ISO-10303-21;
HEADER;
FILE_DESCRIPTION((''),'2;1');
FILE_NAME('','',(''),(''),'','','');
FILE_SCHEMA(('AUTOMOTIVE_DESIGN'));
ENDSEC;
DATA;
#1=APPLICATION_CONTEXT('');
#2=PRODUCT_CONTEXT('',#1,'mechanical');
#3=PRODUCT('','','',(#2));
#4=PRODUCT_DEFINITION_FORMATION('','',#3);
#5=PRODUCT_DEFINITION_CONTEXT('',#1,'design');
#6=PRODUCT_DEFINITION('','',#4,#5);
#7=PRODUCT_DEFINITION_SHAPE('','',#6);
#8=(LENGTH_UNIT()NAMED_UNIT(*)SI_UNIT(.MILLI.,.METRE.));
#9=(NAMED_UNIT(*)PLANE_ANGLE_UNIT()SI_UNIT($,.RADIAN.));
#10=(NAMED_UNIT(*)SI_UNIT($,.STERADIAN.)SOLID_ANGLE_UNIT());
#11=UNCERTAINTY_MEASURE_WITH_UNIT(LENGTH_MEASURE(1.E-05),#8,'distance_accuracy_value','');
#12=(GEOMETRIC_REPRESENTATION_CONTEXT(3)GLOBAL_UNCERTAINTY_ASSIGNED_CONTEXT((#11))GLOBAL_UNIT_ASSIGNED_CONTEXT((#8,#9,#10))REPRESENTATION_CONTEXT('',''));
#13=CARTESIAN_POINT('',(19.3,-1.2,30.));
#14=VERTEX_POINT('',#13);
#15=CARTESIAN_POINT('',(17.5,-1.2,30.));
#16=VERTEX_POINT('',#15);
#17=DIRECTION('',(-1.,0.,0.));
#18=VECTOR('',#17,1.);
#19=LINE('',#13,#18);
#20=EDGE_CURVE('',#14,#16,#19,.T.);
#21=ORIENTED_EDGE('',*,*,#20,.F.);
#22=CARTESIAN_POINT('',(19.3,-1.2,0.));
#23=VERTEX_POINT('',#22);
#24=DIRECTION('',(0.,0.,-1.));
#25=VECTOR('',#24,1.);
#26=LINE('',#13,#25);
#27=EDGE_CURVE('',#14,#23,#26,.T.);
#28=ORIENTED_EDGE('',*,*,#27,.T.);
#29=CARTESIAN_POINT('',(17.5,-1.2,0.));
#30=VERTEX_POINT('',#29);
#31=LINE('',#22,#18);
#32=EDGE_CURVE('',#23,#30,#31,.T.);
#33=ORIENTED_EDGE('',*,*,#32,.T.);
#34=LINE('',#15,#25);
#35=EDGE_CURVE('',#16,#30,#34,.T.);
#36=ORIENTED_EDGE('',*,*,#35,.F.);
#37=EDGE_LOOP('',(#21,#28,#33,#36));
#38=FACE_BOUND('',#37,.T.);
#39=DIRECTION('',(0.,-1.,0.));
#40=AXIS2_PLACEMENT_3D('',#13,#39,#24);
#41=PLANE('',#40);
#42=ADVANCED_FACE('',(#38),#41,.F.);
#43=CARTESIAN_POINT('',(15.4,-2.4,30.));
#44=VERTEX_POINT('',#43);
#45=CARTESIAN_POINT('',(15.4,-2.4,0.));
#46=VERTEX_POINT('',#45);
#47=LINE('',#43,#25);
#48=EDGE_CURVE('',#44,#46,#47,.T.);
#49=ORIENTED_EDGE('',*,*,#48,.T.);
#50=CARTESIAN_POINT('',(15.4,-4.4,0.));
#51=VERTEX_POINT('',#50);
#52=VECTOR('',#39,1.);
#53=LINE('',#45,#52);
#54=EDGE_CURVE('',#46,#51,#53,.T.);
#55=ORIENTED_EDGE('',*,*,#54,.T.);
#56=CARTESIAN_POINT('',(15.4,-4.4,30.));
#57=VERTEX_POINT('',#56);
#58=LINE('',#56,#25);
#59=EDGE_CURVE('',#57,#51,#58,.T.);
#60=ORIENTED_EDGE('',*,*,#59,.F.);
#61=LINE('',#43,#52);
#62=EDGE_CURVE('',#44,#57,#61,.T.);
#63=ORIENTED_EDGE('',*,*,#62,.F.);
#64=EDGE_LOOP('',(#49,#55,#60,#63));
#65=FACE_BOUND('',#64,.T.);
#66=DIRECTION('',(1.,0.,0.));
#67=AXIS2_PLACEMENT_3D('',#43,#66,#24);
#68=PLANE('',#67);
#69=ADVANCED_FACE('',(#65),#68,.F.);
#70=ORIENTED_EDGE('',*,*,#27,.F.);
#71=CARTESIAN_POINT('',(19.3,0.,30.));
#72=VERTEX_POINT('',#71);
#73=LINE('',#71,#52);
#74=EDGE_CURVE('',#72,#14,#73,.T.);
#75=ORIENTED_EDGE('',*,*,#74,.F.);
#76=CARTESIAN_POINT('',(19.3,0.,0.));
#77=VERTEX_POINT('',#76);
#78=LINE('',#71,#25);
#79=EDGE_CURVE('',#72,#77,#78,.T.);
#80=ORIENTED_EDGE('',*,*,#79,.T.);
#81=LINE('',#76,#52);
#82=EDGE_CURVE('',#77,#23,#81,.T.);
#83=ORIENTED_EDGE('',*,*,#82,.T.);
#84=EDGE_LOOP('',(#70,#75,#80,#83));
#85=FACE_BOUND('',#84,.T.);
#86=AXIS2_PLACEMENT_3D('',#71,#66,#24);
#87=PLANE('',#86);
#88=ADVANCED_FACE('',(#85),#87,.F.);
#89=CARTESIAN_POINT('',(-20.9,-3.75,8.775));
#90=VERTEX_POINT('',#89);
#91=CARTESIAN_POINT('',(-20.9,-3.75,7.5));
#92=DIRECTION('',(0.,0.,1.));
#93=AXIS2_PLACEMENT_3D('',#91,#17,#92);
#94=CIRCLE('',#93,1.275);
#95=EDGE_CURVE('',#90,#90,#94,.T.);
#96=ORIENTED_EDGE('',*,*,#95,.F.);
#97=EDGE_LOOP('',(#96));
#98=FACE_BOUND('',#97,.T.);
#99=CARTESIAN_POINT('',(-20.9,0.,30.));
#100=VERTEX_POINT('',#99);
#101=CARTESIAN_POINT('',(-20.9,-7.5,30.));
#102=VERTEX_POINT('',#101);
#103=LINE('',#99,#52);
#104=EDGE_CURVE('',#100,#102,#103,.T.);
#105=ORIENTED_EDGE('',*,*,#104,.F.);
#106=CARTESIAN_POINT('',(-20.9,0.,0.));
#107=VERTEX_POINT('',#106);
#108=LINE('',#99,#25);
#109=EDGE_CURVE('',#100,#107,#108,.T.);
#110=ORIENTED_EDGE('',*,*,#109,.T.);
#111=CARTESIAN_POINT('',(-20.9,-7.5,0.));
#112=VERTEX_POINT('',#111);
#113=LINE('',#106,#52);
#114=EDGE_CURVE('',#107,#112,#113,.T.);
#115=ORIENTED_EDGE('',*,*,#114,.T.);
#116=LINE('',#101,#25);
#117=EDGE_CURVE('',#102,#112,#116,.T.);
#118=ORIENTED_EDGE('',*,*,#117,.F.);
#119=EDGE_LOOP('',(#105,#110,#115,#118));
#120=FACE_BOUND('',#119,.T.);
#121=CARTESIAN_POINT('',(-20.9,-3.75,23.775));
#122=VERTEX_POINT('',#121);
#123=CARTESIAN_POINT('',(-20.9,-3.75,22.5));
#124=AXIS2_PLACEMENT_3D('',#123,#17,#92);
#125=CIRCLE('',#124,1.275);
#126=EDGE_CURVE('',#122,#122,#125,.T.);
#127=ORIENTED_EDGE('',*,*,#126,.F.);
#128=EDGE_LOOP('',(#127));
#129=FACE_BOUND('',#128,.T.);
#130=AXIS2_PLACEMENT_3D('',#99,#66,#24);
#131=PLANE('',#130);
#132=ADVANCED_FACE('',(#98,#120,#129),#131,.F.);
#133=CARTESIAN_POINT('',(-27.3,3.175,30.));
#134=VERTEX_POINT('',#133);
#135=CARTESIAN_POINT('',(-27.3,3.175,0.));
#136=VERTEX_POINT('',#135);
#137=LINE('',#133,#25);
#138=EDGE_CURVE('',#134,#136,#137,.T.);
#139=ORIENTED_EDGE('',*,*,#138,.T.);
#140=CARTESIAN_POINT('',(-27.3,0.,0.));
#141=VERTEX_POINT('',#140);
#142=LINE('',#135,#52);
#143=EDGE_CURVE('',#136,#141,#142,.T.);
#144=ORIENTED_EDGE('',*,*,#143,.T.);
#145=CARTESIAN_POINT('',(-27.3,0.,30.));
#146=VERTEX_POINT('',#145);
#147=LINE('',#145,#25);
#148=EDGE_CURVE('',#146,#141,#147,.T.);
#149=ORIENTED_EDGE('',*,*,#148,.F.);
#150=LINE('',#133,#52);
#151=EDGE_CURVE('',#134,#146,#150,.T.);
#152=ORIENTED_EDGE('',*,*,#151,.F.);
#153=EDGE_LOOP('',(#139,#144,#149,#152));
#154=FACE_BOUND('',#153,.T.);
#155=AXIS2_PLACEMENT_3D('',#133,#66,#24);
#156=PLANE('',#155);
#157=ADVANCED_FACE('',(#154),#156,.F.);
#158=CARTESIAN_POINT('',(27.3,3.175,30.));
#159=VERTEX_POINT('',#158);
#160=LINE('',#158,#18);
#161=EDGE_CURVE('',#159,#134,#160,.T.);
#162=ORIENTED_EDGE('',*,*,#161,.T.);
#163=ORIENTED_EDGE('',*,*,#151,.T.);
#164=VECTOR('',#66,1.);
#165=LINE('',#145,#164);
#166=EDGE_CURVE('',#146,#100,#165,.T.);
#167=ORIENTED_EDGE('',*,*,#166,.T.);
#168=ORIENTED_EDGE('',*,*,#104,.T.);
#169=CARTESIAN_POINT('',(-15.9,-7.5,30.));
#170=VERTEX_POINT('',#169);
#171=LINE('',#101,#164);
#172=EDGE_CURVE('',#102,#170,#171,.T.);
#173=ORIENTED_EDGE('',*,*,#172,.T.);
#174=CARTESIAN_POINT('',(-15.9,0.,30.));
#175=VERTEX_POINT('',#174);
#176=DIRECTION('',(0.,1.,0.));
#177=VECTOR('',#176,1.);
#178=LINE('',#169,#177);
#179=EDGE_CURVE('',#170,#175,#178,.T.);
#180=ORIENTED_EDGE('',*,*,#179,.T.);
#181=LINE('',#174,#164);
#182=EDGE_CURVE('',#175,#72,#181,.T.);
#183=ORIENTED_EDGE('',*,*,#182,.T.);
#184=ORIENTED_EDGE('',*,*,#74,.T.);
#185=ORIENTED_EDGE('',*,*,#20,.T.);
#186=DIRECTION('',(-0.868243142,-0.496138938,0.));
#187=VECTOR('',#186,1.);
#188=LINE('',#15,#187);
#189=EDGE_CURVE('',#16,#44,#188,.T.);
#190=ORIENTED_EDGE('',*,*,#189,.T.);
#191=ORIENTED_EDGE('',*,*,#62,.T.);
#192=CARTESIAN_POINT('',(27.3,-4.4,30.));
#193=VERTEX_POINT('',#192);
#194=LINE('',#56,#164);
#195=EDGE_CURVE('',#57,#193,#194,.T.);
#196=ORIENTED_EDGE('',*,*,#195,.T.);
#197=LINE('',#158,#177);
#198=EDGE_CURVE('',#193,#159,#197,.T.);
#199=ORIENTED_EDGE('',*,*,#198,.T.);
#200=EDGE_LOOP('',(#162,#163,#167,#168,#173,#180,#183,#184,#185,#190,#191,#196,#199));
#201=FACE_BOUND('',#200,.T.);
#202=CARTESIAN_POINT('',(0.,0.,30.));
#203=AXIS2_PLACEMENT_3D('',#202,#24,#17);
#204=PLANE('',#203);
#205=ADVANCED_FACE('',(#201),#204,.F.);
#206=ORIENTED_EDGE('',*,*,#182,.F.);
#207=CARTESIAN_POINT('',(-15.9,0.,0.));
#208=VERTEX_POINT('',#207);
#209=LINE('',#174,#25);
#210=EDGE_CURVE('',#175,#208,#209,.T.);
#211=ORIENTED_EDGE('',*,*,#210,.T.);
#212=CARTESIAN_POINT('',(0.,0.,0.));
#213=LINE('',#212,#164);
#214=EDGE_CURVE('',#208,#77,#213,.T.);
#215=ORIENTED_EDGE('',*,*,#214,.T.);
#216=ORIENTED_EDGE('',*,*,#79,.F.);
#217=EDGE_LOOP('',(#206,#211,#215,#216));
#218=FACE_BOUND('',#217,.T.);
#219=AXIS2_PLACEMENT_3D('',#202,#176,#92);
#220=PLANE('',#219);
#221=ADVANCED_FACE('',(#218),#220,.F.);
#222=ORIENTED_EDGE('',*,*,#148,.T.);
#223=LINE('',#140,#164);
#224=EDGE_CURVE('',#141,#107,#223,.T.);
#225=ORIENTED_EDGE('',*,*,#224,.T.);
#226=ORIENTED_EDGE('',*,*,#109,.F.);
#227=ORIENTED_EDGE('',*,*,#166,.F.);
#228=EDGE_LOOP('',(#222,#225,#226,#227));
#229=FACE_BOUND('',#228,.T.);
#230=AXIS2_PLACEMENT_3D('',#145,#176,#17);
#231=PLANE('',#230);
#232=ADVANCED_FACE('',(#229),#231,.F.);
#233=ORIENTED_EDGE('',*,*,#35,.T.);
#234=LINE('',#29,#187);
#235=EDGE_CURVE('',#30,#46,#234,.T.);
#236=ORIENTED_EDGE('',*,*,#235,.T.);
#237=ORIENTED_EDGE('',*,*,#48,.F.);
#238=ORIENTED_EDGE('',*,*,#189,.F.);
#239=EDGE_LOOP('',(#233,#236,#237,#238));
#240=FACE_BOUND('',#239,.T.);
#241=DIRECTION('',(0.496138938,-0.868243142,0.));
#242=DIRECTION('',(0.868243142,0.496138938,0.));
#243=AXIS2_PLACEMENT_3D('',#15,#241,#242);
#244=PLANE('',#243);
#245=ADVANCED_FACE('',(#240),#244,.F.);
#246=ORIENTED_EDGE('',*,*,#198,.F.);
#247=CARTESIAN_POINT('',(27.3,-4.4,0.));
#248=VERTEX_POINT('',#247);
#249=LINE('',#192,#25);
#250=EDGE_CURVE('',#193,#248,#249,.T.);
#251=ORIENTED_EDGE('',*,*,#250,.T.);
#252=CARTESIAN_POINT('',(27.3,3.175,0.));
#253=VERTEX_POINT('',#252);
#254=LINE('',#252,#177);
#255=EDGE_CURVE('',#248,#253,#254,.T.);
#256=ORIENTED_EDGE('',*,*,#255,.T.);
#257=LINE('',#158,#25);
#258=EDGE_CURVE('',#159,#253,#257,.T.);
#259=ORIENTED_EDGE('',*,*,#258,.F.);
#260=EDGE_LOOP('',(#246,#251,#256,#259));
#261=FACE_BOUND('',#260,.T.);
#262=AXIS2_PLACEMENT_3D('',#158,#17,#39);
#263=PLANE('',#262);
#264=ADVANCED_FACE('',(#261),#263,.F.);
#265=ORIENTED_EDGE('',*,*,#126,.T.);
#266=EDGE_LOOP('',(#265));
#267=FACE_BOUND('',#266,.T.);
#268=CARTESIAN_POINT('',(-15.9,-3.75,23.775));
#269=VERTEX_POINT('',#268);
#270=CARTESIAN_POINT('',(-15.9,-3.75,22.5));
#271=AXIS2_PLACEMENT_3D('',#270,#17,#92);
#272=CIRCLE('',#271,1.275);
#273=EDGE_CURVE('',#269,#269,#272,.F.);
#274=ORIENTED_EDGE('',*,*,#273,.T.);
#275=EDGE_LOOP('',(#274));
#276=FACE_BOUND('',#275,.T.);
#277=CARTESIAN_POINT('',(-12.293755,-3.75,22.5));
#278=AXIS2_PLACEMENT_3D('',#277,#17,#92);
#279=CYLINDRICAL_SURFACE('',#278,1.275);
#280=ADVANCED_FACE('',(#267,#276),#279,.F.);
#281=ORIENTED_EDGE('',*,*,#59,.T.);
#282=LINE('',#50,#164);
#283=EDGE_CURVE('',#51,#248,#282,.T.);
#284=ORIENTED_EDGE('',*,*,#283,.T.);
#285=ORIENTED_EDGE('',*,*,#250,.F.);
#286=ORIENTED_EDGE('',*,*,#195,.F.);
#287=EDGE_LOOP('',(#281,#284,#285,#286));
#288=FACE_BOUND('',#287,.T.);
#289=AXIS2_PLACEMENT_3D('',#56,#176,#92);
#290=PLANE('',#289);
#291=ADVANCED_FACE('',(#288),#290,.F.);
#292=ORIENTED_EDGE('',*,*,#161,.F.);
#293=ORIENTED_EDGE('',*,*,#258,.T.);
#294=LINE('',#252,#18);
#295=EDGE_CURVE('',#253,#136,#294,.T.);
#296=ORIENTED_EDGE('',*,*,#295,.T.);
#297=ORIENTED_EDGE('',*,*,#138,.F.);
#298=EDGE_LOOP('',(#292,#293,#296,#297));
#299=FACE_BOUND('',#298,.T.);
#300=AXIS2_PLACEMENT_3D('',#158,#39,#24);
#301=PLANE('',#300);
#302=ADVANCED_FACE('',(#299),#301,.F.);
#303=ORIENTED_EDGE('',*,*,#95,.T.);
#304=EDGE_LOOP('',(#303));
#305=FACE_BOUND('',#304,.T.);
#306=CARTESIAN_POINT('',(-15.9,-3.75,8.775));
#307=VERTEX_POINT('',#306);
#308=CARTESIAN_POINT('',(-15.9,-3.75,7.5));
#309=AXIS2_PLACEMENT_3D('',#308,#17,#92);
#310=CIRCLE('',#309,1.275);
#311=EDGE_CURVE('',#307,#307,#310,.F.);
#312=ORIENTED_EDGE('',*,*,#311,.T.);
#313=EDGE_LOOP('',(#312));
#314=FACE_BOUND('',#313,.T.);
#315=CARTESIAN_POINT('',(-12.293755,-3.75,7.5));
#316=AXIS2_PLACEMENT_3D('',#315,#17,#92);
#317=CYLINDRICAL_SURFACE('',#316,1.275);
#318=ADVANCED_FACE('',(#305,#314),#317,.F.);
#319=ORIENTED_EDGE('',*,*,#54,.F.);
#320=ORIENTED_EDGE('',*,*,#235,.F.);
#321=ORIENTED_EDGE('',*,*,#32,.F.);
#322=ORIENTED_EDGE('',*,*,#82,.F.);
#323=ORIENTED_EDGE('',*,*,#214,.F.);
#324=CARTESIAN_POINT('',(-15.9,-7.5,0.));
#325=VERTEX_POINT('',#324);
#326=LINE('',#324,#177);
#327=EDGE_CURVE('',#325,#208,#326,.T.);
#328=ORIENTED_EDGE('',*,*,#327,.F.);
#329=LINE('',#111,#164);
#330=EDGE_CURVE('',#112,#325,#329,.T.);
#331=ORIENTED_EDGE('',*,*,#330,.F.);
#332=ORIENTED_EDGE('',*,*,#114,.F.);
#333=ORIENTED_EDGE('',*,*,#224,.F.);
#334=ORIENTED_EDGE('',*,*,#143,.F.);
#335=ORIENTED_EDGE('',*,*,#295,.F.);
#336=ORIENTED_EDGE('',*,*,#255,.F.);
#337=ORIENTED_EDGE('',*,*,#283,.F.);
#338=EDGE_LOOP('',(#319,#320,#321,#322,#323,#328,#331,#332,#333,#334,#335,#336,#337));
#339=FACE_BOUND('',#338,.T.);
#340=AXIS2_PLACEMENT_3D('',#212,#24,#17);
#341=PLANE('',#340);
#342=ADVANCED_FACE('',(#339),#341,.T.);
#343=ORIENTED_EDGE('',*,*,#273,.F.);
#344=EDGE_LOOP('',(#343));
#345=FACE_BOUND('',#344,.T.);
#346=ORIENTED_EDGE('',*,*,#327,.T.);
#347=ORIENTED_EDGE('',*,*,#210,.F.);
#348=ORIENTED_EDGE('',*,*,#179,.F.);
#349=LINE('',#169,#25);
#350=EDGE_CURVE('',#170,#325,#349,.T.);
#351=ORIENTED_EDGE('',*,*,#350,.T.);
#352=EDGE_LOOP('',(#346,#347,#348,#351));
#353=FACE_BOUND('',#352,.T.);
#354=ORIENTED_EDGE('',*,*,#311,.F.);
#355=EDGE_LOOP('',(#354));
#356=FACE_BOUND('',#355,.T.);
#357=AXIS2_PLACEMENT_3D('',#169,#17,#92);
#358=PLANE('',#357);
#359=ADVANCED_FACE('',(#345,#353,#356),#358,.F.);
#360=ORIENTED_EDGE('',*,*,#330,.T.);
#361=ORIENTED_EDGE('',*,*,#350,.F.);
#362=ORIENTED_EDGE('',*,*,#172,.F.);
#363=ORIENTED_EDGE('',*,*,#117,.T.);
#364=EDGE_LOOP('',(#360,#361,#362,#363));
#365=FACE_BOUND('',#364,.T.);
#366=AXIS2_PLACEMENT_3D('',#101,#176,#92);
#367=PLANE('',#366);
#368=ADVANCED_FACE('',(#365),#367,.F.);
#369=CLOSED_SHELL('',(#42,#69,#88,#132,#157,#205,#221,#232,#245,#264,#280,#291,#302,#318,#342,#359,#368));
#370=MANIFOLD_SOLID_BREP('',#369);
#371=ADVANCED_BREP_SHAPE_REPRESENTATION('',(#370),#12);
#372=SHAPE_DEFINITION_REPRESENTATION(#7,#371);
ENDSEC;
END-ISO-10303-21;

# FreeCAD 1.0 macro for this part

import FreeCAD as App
import Part
import Sketcher


def add_polygon(sketch, points):
    """Adds a closed chain of lines whose ends are joined by coincident constraints."""
    first, n = sketch.GeometryCount, len(points)
    for a, b in zip(points, points[1:] + points[:1]):
        sketch.addGeometry(Part.LineSegment(App.Vector(*a, 0), App.Vector(*b, 0)), False)
    for i in range(n):
        sketch.addConstraint(Sketcher.Constraint("Coincident", first + i, 2, first + (i + 1) % n, 1))

doc = App.newDocument("Part")
body = doc.addObject("PartDesign::Body", "Body")

# Sketch on XY plane
sketch1 = body.newObject("Sketcher::SketchObject", "Sketch")
sketch1.AttachmentSupport = (doc.getObject("XY_Plane"), [""])
sketch1.MapMode = "FlatFace"
add_polygon(sketch1, [(19.3, 0), (19.3, -1.2), (17.5, -1.2), (15.4, -2.4), (15.4, -4.4), (27.3, -4.4), (27.3, 3.2), (-27.3, 3.2), (-27.3, 0), (-20.9, 0), (-20.9, -7.5), (-15.9, -7.5), (-15.9, 0)])  # lines 0-12
sketch1.addConstraint(Sketcher.Constraint("Vertical", 0))
sketch1.addConstraint(Sketcher.Constraint("Horizontal", 1))
sketch1.addConstraint(Sketcher.Constraint("Vertical", 3))
sketch1.addConstraint(Sketcher.Constraint("Horizontal", 4))
sketch1.addConstraint(Sketcher.Constraint("Vertical", 5))
sketch1.addConstraint(Sketcher.Constraint("Horizontal", 6))
sketch1.addConstraint(Sketcher.Constraint("Vertical", 7))
sketch1.addConstraint(Sketcher.Constraint("Horizontal", 8))
sketch1.addConstraint(Sketcher.Constraint("Vertical", 9))
sketch1.addConstraint(Sketcher.Constraint("Horizontal", 10))
sketch1.addConstraint(Sketcher.Constraint("Vertical", 11))
sketch1.addConstraint(Sketcher.Constraint("Horizontal", 12))
sketch1.addConstraint(Sketcher.Constraint("PointOnObject", 7, 2, -1))
sketch1.addConstraint(Sketcher.Constraint("PointOnObject", 11, 2, -1))
sketch1.addConstraint(Sketcher.Constraint("DistanceX", 10, 1, 10, 2, 5.0))
sketch1.addConstraint(Sketcher.Constraint("DistanceY", 3, 2, 3, 1, 2.0))
sketch1.addConstraint(Sketcher.Constraint("DistanceX", 1, 2, 1, 1, 1.8))
sketch1.addConstraint(Sketcher.Constraint("DistanceX", 4, 1, 4, 2, 11.9))
sketch1.addConstraint(Sketcher.Constraint("DistanceX", 6, 2, 6, 1, 54.6))
sketch1.addConstraint(Sketcher.Constraint("DistanceX", 8, 1, 8, 2, 6.4))
sketch1.addConstraint(Sketcher.Constraint("DistanceX", 12, 1, 12, 2, 35.2))
sketch1.addConstraint(Sketcher.Constraint("DistanceY", 0, 2, 0, 1, 1.2))
sketch1.addConstraint(Sketcher.Constraint("DistanceY", 9, 2, 9, 1, 7.5))
sketch1.addConstraint(Sketcher.Constraint("DistanceX", -1, 1, 0, 2, 19.3))
sketch1.addConstraint(Sketcher.Constraint("DistanceY", 2, 2, -1, 1, 2.4))
sketch1.addConstraint(Sketcher.Constraint("DistanceY", 5, 1, 5, 2, 7.575))
pad1 = body.newObject("PartDesign::Pad", "Pad")
pad1.Profile = sketch1
pad1.Length = 30

# Sketch on YZ plane
sketch2 = body.newObject("Sketcher::SketchObject", "Sketch001")
sketch2.AttachmentSupport = (doc.getObject("YZ_Plane"), [""])
sketch2.MapMode = "FlatFace"
sketch2.AttachmentOffset = App.Placement(App.Vector(0, 0, -20.9), App.Rotation())
sketch2.addGeometry(Part.Circle(App.Vector(-3.8, 7.5, 0), App.Vector(0, 0, 1), 1.3), False)
sketch2.addGeometry(Part.Circle(App.Vector(-3.8, 22.5, 0), App.Vector(0, 0, 1), 1.3), False)
sketch2.addConstraint(Sketcher.Constraint("Equal", 0, 1))
sketch2.addConstraint(Sketcher.Constraint("Vertical", 0, 3, 1, 3))
sketch2.addConstraint(Sketcher.Constraint("Diameter", 0, 2.55))
sketch2.addConstraint(Sketcher.Constraint("DistanceY", 0, 3, 1, 3, 15.0))
sketch2.addConstraint(Sketcher.Constraint("DistanceY", -1, 1, 0, 3, 7.5))
sketch2.addConstraint(Sketcher.Constraint("DistanceX", 0, 3, -1, 1, 3.75))
pocket1 = body.newObject("PartDesign::Pocket", "Pocket")
pocket1.Profile = sketch2
pocket1.Length = 5
pocket1.Reversed = True

doc.recompute()
